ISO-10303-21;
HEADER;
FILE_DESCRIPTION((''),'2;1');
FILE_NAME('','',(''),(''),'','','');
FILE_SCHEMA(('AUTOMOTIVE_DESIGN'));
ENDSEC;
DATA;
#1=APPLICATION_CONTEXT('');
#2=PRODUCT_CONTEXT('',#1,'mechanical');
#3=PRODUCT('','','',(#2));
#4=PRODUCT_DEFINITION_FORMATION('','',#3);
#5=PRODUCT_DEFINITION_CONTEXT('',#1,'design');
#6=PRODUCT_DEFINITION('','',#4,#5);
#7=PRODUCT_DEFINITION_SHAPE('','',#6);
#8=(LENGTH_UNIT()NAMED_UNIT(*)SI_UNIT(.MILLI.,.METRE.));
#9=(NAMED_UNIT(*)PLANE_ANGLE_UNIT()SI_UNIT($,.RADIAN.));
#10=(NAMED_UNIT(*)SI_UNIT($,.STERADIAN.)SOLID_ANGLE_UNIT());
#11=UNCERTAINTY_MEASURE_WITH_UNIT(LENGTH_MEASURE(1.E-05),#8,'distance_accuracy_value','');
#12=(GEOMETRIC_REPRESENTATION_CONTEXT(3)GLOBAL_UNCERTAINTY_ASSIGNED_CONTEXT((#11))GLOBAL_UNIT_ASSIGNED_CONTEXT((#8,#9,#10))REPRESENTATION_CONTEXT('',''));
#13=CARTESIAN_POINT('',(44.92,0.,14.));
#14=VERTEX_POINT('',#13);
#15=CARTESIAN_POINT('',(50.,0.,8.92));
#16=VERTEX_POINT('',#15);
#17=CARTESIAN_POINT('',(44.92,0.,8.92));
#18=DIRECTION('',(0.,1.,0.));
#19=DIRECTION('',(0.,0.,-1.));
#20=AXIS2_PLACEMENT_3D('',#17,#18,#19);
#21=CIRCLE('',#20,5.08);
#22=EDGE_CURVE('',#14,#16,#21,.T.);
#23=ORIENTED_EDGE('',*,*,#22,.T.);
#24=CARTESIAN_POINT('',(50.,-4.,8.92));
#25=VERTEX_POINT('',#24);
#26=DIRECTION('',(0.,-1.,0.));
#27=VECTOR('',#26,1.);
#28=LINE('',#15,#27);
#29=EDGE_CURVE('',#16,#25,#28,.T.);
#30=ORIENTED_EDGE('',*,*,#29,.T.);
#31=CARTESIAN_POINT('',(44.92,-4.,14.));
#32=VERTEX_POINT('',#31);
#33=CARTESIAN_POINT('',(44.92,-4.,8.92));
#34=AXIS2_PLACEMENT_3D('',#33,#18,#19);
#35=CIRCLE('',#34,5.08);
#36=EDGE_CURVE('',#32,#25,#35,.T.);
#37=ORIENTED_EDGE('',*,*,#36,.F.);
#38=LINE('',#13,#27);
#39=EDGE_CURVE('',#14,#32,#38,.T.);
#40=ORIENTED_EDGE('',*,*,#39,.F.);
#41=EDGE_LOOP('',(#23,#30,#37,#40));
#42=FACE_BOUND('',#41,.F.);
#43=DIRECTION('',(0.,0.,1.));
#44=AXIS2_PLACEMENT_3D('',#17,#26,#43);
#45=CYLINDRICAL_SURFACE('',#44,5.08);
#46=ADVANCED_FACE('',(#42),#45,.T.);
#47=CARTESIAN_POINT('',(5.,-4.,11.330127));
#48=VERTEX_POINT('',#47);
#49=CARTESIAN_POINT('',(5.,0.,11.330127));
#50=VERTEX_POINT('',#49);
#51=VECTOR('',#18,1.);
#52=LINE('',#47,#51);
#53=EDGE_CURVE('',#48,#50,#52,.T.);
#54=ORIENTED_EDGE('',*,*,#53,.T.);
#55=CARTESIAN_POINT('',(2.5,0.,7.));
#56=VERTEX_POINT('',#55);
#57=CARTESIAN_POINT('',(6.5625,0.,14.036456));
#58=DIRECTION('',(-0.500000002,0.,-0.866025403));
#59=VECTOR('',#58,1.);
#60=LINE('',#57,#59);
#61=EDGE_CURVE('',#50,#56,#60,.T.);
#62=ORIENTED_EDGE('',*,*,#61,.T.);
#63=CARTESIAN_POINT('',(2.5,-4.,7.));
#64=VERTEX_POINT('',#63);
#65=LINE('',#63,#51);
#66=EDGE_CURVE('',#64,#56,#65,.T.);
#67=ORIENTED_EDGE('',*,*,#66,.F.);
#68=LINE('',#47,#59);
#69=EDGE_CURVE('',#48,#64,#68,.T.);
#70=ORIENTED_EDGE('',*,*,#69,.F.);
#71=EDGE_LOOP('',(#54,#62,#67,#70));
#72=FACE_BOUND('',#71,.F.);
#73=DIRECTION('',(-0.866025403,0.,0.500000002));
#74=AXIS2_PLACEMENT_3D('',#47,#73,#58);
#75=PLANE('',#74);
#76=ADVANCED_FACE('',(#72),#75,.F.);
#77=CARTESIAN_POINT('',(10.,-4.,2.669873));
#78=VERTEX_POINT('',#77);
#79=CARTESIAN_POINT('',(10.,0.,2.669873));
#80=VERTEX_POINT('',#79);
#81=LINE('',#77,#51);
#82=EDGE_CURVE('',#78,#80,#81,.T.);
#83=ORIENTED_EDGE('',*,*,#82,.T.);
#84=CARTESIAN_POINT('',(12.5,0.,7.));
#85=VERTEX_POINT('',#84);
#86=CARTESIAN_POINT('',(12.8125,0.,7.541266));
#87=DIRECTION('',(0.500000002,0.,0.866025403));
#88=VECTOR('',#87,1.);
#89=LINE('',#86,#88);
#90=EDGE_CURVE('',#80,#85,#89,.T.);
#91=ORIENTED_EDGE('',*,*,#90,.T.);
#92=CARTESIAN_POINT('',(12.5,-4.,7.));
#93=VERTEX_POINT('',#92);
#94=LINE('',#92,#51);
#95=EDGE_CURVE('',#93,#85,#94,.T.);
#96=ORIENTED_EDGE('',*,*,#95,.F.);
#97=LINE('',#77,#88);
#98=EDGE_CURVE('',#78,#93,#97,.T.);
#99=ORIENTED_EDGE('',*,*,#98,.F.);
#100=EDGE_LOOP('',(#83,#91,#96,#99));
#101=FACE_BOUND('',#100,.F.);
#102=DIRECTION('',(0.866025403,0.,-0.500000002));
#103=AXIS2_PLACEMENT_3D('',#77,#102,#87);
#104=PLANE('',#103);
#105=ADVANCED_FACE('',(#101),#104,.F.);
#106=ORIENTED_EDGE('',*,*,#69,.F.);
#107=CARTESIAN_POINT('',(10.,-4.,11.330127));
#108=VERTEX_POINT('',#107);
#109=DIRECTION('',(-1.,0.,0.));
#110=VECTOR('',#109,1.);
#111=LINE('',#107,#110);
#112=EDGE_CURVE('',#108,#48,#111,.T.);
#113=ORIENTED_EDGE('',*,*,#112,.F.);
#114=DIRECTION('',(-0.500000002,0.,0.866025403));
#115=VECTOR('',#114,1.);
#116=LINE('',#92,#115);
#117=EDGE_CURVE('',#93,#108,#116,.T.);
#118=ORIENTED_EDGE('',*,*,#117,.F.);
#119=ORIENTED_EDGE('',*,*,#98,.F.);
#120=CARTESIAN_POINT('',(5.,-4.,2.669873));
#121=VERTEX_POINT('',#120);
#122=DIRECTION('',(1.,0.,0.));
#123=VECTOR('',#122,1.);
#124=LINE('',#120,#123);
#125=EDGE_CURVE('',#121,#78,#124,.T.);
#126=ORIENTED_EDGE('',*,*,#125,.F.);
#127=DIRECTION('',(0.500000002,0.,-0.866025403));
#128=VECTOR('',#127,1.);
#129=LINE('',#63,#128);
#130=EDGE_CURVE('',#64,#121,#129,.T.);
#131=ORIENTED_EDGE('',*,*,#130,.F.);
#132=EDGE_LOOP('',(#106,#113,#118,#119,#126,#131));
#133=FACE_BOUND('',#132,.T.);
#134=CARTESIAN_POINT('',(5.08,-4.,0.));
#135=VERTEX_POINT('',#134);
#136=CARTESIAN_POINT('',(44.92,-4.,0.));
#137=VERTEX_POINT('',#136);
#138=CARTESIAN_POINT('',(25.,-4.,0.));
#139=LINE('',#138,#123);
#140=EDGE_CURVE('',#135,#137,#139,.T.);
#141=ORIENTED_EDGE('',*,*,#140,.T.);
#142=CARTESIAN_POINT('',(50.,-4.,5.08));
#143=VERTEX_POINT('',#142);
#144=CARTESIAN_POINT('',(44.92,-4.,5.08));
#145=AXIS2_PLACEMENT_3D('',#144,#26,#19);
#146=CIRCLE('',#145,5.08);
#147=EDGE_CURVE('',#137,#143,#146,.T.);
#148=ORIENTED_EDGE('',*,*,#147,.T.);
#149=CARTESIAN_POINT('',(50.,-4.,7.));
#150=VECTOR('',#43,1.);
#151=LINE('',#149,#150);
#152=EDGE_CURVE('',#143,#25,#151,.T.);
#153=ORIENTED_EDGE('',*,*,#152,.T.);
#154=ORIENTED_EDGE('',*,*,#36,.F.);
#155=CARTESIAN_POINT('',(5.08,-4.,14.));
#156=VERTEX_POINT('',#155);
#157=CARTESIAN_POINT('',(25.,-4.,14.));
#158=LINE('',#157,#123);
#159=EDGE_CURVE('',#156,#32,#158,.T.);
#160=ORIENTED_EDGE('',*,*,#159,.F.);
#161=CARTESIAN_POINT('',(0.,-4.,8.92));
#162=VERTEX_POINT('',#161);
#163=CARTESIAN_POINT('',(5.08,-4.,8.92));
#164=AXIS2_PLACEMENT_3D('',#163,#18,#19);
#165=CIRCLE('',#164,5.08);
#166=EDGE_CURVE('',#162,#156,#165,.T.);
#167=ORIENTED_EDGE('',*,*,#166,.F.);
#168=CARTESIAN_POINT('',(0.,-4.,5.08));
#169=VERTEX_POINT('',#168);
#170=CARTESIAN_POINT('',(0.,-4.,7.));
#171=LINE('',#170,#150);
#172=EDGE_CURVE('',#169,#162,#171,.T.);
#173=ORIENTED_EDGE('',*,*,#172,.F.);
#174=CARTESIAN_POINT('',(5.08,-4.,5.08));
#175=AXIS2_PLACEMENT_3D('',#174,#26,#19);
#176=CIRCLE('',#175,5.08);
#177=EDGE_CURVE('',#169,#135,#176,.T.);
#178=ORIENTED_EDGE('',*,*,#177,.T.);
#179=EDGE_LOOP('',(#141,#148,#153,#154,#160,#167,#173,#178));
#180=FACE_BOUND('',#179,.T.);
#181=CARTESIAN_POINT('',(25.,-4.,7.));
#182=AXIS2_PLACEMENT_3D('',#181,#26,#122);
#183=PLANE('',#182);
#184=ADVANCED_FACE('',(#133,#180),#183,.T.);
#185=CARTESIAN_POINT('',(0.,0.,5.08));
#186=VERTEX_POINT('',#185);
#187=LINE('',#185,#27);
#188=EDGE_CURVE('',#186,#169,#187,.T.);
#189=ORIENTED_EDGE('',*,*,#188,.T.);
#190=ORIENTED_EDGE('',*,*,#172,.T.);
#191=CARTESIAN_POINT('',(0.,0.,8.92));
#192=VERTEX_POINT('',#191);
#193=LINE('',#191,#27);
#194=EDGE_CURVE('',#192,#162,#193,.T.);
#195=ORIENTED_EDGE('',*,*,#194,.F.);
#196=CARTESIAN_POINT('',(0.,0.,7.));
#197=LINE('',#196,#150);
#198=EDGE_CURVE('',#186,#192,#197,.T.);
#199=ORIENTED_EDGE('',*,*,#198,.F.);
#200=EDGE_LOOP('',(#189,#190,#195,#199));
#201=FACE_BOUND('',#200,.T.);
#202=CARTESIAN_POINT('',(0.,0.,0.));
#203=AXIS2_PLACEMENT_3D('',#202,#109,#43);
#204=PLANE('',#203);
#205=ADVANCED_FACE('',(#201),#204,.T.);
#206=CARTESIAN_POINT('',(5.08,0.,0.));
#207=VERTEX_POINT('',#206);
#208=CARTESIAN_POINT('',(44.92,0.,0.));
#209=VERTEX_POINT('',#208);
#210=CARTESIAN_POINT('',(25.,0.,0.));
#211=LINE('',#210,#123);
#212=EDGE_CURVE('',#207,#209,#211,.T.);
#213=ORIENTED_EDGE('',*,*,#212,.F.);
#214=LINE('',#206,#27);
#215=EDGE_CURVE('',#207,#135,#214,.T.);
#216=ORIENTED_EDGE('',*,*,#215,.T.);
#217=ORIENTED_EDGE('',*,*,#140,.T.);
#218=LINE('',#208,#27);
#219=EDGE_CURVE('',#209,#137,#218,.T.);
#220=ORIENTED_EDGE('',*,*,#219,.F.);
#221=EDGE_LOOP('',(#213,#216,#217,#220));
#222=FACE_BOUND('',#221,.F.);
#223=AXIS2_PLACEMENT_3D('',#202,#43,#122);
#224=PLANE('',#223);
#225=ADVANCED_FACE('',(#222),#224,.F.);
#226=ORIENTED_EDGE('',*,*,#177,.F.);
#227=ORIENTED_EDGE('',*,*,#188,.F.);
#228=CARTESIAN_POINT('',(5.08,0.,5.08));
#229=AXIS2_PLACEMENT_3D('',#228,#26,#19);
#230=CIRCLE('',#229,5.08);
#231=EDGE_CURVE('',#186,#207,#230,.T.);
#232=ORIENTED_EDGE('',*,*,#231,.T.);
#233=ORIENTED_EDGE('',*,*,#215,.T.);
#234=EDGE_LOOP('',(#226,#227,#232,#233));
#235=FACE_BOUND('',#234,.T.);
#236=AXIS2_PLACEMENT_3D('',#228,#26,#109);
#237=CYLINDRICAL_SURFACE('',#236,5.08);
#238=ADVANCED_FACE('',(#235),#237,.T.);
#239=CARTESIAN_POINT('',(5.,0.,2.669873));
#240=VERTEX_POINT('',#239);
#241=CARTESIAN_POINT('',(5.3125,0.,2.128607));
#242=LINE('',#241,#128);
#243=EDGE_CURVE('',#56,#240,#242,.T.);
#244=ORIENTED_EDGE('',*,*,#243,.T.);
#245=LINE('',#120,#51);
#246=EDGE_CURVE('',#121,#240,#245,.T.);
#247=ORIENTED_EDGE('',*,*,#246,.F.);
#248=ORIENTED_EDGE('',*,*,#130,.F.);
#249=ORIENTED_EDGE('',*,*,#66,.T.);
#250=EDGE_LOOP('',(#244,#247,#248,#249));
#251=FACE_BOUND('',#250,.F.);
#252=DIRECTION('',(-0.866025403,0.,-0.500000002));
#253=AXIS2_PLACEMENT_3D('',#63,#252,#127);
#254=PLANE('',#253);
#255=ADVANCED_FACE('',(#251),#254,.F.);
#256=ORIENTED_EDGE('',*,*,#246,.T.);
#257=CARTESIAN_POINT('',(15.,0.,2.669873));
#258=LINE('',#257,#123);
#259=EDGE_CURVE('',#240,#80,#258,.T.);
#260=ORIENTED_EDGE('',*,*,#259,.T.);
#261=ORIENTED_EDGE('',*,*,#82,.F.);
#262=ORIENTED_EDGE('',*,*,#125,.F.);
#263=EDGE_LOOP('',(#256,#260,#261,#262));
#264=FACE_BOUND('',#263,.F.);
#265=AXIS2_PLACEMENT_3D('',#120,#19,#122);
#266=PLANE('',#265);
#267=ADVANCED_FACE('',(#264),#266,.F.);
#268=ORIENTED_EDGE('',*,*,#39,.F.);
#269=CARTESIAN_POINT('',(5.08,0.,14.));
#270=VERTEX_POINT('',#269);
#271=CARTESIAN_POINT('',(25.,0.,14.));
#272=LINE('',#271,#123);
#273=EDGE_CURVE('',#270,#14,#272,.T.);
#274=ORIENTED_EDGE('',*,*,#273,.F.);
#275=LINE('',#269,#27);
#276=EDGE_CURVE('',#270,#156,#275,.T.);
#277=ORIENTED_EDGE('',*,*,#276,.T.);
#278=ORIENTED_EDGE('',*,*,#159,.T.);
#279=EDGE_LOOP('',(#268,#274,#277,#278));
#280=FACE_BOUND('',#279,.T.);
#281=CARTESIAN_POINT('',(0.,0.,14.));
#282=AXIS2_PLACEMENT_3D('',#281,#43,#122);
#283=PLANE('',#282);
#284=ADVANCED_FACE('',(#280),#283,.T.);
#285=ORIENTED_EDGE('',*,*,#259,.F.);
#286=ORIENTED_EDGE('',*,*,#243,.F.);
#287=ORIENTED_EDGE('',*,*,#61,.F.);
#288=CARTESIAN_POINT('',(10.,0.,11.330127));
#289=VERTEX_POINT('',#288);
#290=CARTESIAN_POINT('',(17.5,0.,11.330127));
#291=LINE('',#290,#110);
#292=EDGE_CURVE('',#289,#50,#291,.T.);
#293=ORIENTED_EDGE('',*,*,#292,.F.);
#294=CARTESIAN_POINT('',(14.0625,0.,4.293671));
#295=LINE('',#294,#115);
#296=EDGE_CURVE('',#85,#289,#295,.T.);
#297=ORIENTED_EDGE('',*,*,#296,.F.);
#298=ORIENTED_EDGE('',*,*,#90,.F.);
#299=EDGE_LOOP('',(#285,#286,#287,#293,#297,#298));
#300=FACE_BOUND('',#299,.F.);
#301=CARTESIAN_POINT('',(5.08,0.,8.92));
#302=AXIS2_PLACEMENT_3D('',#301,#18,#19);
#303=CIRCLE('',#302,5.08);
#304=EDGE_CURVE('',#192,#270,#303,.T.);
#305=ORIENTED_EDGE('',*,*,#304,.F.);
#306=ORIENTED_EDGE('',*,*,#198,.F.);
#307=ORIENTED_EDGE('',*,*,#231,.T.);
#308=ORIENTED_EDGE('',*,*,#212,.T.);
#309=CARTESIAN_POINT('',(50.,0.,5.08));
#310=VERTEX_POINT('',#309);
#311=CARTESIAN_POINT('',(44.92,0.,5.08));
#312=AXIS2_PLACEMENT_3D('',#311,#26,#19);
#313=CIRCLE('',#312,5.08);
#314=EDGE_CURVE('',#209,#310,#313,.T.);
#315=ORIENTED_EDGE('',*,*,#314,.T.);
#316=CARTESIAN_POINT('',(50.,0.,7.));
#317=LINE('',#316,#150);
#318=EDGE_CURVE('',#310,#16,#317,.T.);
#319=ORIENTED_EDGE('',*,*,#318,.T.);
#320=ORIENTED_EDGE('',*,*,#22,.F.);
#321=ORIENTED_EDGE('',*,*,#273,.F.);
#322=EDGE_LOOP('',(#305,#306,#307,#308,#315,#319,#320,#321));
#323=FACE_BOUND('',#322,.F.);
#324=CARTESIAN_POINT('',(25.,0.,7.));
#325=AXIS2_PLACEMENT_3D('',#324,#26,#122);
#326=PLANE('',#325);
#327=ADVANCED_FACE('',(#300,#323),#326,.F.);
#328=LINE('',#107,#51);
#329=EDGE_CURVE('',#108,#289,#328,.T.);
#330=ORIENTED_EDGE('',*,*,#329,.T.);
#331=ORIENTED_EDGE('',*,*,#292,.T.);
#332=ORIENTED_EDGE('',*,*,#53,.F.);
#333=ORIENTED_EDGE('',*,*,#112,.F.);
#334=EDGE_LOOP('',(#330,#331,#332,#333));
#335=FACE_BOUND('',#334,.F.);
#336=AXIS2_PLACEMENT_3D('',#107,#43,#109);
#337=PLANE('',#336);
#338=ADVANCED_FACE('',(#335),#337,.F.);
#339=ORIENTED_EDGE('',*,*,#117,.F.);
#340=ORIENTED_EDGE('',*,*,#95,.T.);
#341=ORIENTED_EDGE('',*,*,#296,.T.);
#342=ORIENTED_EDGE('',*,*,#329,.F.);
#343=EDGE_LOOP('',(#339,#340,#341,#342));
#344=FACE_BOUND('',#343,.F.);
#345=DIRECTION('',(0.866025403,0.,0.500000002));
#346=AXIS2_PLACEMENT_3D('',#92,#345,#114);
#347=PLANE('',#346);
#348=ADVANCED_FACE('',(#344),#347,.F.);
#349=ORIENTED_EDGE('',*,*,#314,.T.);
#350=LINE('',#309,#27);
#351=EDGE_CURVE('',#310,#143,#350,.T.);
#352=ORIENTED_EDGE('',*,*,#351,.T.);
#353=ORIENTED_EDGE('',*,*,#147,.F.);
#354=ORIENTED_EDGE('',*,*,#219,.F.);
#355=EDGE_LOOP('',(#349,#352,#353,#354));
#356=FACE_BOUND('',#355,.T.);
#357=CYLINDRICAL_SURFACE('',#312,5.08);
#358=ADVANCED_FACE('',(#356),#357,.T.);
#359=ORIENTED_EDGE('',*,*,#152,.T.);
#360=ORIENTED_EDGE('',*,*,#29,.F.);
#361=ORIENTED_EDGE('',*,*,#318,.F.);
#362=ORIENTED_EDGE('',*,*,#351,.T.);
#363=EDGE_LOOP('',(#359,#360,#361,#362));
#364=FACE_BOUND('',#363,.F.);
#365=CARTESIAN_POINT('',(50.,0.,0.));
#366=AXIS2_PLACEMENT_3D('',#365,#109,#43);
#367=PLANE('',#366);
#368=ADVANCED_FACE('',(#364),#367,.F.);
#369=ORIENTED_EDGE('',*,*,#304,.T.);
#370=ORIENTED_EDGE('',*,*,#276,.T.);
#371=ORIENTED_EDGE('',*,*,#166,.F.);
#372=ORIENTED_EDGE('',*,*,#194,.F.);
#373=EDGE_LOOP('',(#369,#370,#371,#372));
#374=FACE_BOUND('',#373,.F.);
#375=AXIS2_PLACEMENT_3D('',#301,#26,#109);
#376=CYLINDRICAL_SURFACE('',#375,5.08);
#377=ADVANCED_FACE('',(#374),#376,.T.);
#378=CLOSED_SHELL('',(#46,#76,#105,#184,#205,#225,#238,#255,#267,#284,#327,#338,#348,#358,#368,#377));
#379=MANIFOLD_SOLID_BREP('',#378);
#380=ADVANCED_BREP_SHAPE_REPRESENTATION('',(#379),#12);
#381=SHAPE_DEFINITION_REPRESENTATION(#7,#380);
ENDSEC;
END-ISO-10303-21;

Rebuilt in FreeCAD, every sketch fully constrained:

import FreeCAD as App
import Part
import Sketcher
Q = App.Units.Quantity


def edges_at(feature, points):
    """Names of the edges that pass closest to the given points."""
    edges = feature.Shape.Edges
    near = lambda p: min(range(len(edges)), key=lambda i: edges[i].distToShape(Part.Vertex(*p))[0])
    return sorted({f"Edge{near(p) + 1}" for p in points})

doc = App.newDocument("Part")
body = doc.addObject("PartDesign::Body", "Body")

sketch1 = body.newObject("Sketcher::SketchObject", "Sketch")
sketch1.AttachmentSupport = (doc.getObject("XZ_Plane"), [""])
sketch1.MapMode = "FlatFace"
sketch1.addGeometry([
    Part.LineSegment(App.Vector(0, 14, 0), App.Vector(0, 0, 0)),
    Part.LineSegment(App.Vector(0, 0, 0), App.Vector(50, 0, 0)),
    Part.LineSegment(App.Vector(50, 0, 0), App.Vector(50, 14, 0)),
    Part.LineSegment(App.Vector(50, 14, 0), App.Vector(0, 14, 0)),
], False)
sketch1.addConstraint([
    Sketcher.Constraint("Coincident", 0, 2, 1, 1),
    Sketcher.Constraint("Coincident", 1, 2, 2, 1),
    Sketcher.Constraint("Coincident", 2, 2, 3, 1),
    Sketcher.Constraint("Coincident", 3, 2, 0, 1),
    Sketcher.Constraint("Vertical", 0),
    Sketcher.Constraint("Horizontal", 1),
    Sketcher.Constraint("Vertical", 2),
    Sketcher.Constraint("Horizontal", 3),
    Sketcher.Constraint("Coincident", 0, 2, -1, 1),
    Sketcher.Constraint("DistanceX", 1, 1, 1, 2, Q("50 mm")),
    Sketcher.Constraint("DistanceY", 0, 2, 0, 1, Q("14 mm")),
])
pad1 = body.newObject("PartDesign::Pad", "Pad")
pad1.Profile = sketch1
pad1.Length = 4

sketch2 = body.newObject("Sketcher::SketchObject", "Sketch001")
sketch2.AttachmentSupport = (doc.getObject("XZ_Plane"), [""])
sketch2.MapMode = "FlatFace"
sketch2.AttachmentOffset = App.Placement(App.Vector(0, 0, 4), App.Rotation())
sketch2.addGeometry([
    Part.LineSegment(App.Vector(12.5, 7, 0), App.Vector(10, 11.3, 0)),
    Part.LineSegment(App.Vector(10, 11.3, 0), App.Vector(5, 11.3, 0)),
    Part.LineSegment(App.Vector(5, 11.3, 0), App.Vector(2.5, 7, 0)),
    Part.LineSegment(App.Vector(2.5, 7, 0), App.Vector(5, 2.7, 0)),
    Part.LineSegment(App.Vector(5, 2.7, 0), App.Vector(10, 2.7, 0)),
    Part.LineSegment(App.Vector(10, 2.7, 0), App.Vector(12.5, 7, 0)),
], False)
sketch2.addConstraint([
    Sketcher.Constraint("Coincident", 0, 2, 1, 1),
    Sketcher.Constraint("Coincident", 1, 2, 2, 1),
    Sketcher.Constraint("Coincident", 2, 2, 3, 1),
    Sketcher.Constraint("Coincident", 3, 2, 4, 1),
    Sketcher.Constraint("Coincident", 4, 2, 5, 1),
    Sketcher.Constraint("Coincident", 5, 2, 0, 1),
    Sketcher.Constraint("Horizontal", 1),
    Sketcher.Constraint("Horizontal", 4),
    Sketcher.Constraint("Parallel", 0, 3),
    Sketcher.Constraint("Parallel", 2, 5),
    Sketcher.Constraint("Horizontal", 2, 2, 5, 2),
    Sketcher.Constraint("Vertical", 1, 2, 3, 2),
    Sketcher.Constraint("Vertical", 0, 2, 4, 2),
    Sketcher.Constraint("DistanceX", 1, 2, 1, 1, Q("5 mm")),
    Sketcher.Constraint("Angle", 0, Q("120 deg")),
    Sketcher.Constraint("Distance", 0, Q("5 mm")),
    Sketcher.Constraint("DistanceX", -1, 1, 0, 2, Q("10 mm")),
    Sketcher.Constraint("DistanceY", -1, 1, 2, 2, Q("7 mm")),
])
pocket1 = body.newObject("PartDesign::Pocket", "Pocket")
pocket1.Profile = sketch2
pocket1.Type = "ThroughAll"
doc.recompute()

fillet = body.newObject("PartDesign::Fillet", "Fillet")
fillet.Base = (pocket1, edges_at(pocket1, [
    (0, -2, 14),
    (50, -2, 14),
    (50, -2, 0),
    (0, -2, 0),
]))
fillet.Radius = 5.08

doc.recompute()
